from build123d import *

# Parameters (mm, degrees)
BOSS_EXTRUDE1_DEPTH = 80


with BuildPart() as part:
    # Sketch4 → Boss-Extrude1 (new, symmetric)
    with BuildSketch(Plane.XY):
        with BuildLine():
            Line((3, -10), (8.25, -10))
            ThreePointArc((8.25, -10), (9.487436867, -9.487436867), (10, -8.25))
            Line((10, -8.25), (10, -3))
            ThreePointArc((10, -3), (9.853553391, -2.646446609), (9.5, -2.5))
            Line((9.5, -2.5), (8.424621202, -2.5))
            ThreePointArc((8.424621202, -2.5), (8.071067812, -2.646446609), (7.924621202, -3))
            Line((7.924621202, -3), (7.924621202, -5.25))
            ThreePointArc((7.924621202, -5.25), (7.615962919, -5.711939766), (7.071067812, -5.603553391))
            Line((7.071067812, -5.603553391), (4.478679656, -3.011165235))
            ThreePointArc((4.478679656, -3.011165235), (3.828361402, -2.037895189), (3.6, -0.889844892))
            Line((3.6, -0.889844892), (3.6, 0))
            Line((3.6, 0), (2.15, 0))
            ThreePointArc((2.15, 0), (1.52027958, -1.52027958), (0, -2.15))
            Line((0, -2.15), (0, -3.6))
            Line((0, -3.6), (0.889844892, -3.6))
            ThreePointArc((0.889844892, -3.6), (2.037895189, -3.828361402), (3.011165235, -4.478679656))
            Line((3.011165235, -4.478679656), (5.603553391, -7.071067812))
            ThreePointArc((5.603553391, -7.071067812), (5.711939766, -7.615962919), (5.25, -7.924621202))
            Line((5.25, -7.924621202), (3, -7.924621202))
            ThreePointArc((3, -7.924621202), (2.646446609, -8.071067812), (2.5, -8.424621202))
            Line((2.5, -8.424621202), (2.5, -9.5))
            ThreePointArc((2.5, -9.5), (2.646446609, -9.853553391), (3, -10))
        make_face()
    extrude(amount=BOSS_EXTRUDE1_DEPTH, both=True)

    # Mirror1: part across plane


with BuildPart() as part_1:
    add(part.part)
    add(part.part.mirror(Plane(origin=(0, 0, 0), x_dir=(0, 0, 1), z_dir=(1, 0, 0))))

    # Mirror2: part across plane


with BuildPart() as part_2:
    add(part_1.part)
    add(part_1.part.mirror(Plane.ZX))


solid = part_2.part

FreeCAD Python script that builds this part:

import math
import FreeCAD as App
import Part
import Sketcher
from FreeCAD import Vector
Q = App.Units.Quantity

doc = App.newDocument("Part")
body = doc.addObject("PartDesign::Body", "Body")

# Sketch on XY plane
sketch1 = body.newObject("Sketcher::SketchObject", "Sketch")
sketch1.AttachmentSupport = (doc.getObject("XY_Plane"), [""])
sketch1.MapMode = "FlatFace"
sketch1.addGeometry([
    Part.LineSegment(Vector(3, -10, 0), Vector(8.25, -10, 0)),  # 0
    Part.ArcOfCircle(Part.Circle(Vector(8.25, -8.25, 0), Vector(0, 0, 1), 1.75), math.radians(-90), math.radians(0)),  # 1
    Part.LineSegment(Vector(10, -8.25, 0), Vector(10, -3, 0)),  # 2
    Part.ArcOfCircle(Part.Circle(Vector(9.5, -3, 0), Vector(0, 0, 1), 0.5), math.radians(0), math.radians(90)),  # 3
    Part.LineSegment(Vector(9.5, -2.5, 0), Vector(8.42, -2.5, 0)),  # 4
    Part.ArcOfCircle(Part.Circle(Vector(8.42, -3, 0), Vector(0, 0, 1), 0.5), math.radians(90), math.radians(180)),  # 5
    Part.LineSegment(Vector(7.92, -3, 0), Vector(7.92, -5.25, 0)),  # 6
    Part.ArcOfCircle(Part.Circle(Vector(7.42, -5.25, 0), Vector(0, 0, 1), 0.5), math.radians(-135), math.radians(0)),  # 7
    Part.LineSegment(Vector(7.07, -5.6, 0), Vector(4.48, -3.01, 0)),  # 8
    Part.ArcOfCircle(Part.Circle(Vector(6.6, -0.89, 0), Vector(0, 0, 1), 3), math.radians(180), math.radians(225)),  # 9
    Part.LineSegment(Vector(3.6, -0.89, 0), Vector(3.6, 0, 0)),  # 10
    Part.LineSegment(Vector(3.6, 0, 0), Vector(2.15, 0, 0)),  # 11
    Part.ArcOfCircle(Part.Circle(Vector(0, 0, 0), Vector(0, 0, 1), 2.15), math.radians(-90), math.radians(0)),  # 12
    Part.LineSegment(Vector(0, -2.15, 0), Vector(0, -3.6, 0)),  # 13
    Part.LineSegment(Vector(0, -3.6, 0), Vector(0.89, -3.6, 0)),  # 14
    Part.ArcOfCircle(Part.Circle(Vector(0.89, -6.6, 0), Vector(0, 0, 1), 3), math.radians(45), math.radians(90)),  # 15
    Part.LineSegment(Vector(3.01, -4.48, 0), Vector(5.6, -7.07, 0)),  # 16
    Part.ArcOfCircle(Part.Circle(Vector(5.25, -7.42, 0), Vector(0, 0, 1), 0.5), math.radians(-90), math.radians(45)),  # 17
    Part.LineSegment(Vector(5.25, -7.92, 0), Vector(3, -7.92, 0)),  # 18
    Part.ArcOfCircle(Part.Circle(Vector(3, -8.42, 0), Vector(0, 0, 1), 0.5), math.radians(90), math.radians(180)),  # 19
    Part.LineSegment(Vector(2.5, -8.42, 0), Vector(2.5, -9.5, 0)),  # 20
    Part.ArcOfCircle(Part.Circle(Vector(3, -9.5, 0), Vector(0, 0, 1), 0.5), math.radians(180), math.radians(270)),  # 21
], False)
sketch1.addConstraint([
    Sketcher.Constraint("Tangent", 0, 2, 1, 1),
    Sketcher.Constraint("Tangent", 1, 2, 2, 1),
    Sketcher.Constraint("Tangent", 2, 2, 3, 1),
    Sketcher.Constraint("Tangent", 3, 2, 4, 1),
    Sketcher.Constraint("Tangent", 4, 2, 5, 1),
    Sketcher.Constraint("Tangent", 5, 2, 6, 1),
    Sketcher.Constraint("Tangent", 6, 2, 7, 2),
    Sketcher.Constraint("Tangent", 7, 1, 8, 1),
    Sketcher.Constraint("Tangent", 8, 2, 9, 2),
    Sketcher.Constraint("Tangent", 9, 1, 10, 1),
    Sketcher.Constraint("Coincident", 10, 2, 11, 1),
    Sketcher.Constraint("Coincident", 11, 2, 12, 2),
    Sketcher.Constraint("Coincident", 12, 1, 13, 1),
    Sketcher.Constraint("Coincident", 13, 2, 14, 1),
    Sketcher.Constraint("Tangent", 14, 2, 15, 2),
    Sketcher.Constraint("Tangent", 15, 1, 16, 1),
    Sketcher.Constraint("Tangent", 16, 2, 17, 2),
    Sketcher.Constraint("Tangent", 17, 1, 18, 1),
    Sketcher.Constraint("Tangent", 18, 2, 19, 1),
    Sketcher.Constraint("Tangent", 19, 2, 20, 1),
    Sketcher.Constraint("Tangent", 20, 2, 21, 1),
    Sketcher.Constraint("Tangent", 21, 2, 0, 1),
    Sketcher.Constraint("Horizontal", 0),
    Sketcher.Constraint("Vertical", 2),
    Sketcher.Constraint("Horizontal", 4),
    Sketcher.Constraint("Vertical", 6),
    Sketcher.Constraint("Vertical", 10),
    Sketcher.Constraint("Horizontal", 11),
    Sketcher.Constraint("Vertical", 13),
    Sketcher.Constraint("Horizontal", 14),
    Sketcher.Constraint("Horizontal", 18),
    Sketcher.Constraint("Vertical", 20),
    Sketcher.Constraint("Coincident", 12, 3, -1, 1),
    Sketcher.Constraint("Equal", 3, 5),
    Sketcher.Constraint("Equal", 5, 7),
    Sketcher.Constraint("Equal", 9, 15),
    Sketcher.Constraint("Equal", 7, 17),
    Sketcher.Constraint("Equal", 17, 19),
    Sketcher.Constraint("Equal", 19, 21),
    Sketcher.Constraint("PointOnObject", 10, 2, -1),
    Sketcher.Constraint("PointOnObject", 12, 1, -2),
    Sketcher.Constraint("Parallel", 8, 16),
    Sketcher.Constraint("Equal", 0, 2),
    Sketcher.Constraint("Equal", 18, 6),
    Sketcher.Constraint("Equal", 14, 10),
    Sketcher.Constraint("Equal", 11, 13),
    Sketcher.Constraint("Equal", 4, 20),
    Sketcher.Constraint("Equal", 8, 16),
    Sketcher.Constraint("Radius", 9, Q("3 mm")),
    Sketcher.Constraint("Radius", 3, Q("0.5 mm")),
    Sketcher.Constraint("Radius", 1, Q("1.75 mm")),
    Sketcher.Constraint("Radius", 12, Q("2.15 mm")),
    Sketcher.Constraint("DistanceY", 3, 3, -1, 1, Q("3 mm")),
    Sketcher.Constraint("DistanceY", 0, 2, -1, 1, Q("10 mm")),
    Sketcher.Constraint("DistanceY", 1, 3, 7, 3, Q("3 mm")),
    Sketcher.Constraint("DistanceX", 11, 2, 11, 1, Q("1.45 mm")),
    Sketcher.Constraint("DistanceX", 4, 2, 4, 1, Q("1.075379 mm")),
])
pad1 = body.newObject("PartDesign::Pad", "Pad")
pad1.Profile = sketch1
pad1.Length = 160
pad1.Midplane = True
body2 = doc.addObject("PartDesign::Body", "Body001")
doc.recompute()

body2.BaseFeature = body
doc.recompute()

mirroring = doc.addObject("Part::Mirroring", "Mirroring")
mirroring.Source = body
mirroring.Base = Vector(0, 0, 0)
mirroring.Normal = Vector(1, 0, 0)
body3 = doc.addObject("PartDesign::Body", "Body002")
body3.BaseFeature = mirroring
boolean = body2.newObject("PartDesign::Boolean", "Boolean")
boolean.Type = "Fuse"
boolean.addObjects([body3])
doc.recompute()
body4 = doc.addObject("PartDesign::Body", "Body003")
doc.recompute()

body4.BaseFeature = body2
doc.recompute()

mirroring2 = doc.addObject("Part::Mirroring", "Mirroring001")
mirroring2.Source = body2
mirroring2.Base = Vector(0, 0, 0)
mirroring2.Normal = Vector(0, 1, 0)
body5 = doc.addObject("PartDesign::Body", "Body004")
body5.BaseFeature = mirroring2
boolean2 = body4.newObject("PartDesign::Boolean", "Boolean001")
boolean2.Type = "Fuse"
boolean2.addObjects([body5])
doc.recompute()
mirroring.Visibility = False
mirroring2.Visibility = False

doc.recompute()
